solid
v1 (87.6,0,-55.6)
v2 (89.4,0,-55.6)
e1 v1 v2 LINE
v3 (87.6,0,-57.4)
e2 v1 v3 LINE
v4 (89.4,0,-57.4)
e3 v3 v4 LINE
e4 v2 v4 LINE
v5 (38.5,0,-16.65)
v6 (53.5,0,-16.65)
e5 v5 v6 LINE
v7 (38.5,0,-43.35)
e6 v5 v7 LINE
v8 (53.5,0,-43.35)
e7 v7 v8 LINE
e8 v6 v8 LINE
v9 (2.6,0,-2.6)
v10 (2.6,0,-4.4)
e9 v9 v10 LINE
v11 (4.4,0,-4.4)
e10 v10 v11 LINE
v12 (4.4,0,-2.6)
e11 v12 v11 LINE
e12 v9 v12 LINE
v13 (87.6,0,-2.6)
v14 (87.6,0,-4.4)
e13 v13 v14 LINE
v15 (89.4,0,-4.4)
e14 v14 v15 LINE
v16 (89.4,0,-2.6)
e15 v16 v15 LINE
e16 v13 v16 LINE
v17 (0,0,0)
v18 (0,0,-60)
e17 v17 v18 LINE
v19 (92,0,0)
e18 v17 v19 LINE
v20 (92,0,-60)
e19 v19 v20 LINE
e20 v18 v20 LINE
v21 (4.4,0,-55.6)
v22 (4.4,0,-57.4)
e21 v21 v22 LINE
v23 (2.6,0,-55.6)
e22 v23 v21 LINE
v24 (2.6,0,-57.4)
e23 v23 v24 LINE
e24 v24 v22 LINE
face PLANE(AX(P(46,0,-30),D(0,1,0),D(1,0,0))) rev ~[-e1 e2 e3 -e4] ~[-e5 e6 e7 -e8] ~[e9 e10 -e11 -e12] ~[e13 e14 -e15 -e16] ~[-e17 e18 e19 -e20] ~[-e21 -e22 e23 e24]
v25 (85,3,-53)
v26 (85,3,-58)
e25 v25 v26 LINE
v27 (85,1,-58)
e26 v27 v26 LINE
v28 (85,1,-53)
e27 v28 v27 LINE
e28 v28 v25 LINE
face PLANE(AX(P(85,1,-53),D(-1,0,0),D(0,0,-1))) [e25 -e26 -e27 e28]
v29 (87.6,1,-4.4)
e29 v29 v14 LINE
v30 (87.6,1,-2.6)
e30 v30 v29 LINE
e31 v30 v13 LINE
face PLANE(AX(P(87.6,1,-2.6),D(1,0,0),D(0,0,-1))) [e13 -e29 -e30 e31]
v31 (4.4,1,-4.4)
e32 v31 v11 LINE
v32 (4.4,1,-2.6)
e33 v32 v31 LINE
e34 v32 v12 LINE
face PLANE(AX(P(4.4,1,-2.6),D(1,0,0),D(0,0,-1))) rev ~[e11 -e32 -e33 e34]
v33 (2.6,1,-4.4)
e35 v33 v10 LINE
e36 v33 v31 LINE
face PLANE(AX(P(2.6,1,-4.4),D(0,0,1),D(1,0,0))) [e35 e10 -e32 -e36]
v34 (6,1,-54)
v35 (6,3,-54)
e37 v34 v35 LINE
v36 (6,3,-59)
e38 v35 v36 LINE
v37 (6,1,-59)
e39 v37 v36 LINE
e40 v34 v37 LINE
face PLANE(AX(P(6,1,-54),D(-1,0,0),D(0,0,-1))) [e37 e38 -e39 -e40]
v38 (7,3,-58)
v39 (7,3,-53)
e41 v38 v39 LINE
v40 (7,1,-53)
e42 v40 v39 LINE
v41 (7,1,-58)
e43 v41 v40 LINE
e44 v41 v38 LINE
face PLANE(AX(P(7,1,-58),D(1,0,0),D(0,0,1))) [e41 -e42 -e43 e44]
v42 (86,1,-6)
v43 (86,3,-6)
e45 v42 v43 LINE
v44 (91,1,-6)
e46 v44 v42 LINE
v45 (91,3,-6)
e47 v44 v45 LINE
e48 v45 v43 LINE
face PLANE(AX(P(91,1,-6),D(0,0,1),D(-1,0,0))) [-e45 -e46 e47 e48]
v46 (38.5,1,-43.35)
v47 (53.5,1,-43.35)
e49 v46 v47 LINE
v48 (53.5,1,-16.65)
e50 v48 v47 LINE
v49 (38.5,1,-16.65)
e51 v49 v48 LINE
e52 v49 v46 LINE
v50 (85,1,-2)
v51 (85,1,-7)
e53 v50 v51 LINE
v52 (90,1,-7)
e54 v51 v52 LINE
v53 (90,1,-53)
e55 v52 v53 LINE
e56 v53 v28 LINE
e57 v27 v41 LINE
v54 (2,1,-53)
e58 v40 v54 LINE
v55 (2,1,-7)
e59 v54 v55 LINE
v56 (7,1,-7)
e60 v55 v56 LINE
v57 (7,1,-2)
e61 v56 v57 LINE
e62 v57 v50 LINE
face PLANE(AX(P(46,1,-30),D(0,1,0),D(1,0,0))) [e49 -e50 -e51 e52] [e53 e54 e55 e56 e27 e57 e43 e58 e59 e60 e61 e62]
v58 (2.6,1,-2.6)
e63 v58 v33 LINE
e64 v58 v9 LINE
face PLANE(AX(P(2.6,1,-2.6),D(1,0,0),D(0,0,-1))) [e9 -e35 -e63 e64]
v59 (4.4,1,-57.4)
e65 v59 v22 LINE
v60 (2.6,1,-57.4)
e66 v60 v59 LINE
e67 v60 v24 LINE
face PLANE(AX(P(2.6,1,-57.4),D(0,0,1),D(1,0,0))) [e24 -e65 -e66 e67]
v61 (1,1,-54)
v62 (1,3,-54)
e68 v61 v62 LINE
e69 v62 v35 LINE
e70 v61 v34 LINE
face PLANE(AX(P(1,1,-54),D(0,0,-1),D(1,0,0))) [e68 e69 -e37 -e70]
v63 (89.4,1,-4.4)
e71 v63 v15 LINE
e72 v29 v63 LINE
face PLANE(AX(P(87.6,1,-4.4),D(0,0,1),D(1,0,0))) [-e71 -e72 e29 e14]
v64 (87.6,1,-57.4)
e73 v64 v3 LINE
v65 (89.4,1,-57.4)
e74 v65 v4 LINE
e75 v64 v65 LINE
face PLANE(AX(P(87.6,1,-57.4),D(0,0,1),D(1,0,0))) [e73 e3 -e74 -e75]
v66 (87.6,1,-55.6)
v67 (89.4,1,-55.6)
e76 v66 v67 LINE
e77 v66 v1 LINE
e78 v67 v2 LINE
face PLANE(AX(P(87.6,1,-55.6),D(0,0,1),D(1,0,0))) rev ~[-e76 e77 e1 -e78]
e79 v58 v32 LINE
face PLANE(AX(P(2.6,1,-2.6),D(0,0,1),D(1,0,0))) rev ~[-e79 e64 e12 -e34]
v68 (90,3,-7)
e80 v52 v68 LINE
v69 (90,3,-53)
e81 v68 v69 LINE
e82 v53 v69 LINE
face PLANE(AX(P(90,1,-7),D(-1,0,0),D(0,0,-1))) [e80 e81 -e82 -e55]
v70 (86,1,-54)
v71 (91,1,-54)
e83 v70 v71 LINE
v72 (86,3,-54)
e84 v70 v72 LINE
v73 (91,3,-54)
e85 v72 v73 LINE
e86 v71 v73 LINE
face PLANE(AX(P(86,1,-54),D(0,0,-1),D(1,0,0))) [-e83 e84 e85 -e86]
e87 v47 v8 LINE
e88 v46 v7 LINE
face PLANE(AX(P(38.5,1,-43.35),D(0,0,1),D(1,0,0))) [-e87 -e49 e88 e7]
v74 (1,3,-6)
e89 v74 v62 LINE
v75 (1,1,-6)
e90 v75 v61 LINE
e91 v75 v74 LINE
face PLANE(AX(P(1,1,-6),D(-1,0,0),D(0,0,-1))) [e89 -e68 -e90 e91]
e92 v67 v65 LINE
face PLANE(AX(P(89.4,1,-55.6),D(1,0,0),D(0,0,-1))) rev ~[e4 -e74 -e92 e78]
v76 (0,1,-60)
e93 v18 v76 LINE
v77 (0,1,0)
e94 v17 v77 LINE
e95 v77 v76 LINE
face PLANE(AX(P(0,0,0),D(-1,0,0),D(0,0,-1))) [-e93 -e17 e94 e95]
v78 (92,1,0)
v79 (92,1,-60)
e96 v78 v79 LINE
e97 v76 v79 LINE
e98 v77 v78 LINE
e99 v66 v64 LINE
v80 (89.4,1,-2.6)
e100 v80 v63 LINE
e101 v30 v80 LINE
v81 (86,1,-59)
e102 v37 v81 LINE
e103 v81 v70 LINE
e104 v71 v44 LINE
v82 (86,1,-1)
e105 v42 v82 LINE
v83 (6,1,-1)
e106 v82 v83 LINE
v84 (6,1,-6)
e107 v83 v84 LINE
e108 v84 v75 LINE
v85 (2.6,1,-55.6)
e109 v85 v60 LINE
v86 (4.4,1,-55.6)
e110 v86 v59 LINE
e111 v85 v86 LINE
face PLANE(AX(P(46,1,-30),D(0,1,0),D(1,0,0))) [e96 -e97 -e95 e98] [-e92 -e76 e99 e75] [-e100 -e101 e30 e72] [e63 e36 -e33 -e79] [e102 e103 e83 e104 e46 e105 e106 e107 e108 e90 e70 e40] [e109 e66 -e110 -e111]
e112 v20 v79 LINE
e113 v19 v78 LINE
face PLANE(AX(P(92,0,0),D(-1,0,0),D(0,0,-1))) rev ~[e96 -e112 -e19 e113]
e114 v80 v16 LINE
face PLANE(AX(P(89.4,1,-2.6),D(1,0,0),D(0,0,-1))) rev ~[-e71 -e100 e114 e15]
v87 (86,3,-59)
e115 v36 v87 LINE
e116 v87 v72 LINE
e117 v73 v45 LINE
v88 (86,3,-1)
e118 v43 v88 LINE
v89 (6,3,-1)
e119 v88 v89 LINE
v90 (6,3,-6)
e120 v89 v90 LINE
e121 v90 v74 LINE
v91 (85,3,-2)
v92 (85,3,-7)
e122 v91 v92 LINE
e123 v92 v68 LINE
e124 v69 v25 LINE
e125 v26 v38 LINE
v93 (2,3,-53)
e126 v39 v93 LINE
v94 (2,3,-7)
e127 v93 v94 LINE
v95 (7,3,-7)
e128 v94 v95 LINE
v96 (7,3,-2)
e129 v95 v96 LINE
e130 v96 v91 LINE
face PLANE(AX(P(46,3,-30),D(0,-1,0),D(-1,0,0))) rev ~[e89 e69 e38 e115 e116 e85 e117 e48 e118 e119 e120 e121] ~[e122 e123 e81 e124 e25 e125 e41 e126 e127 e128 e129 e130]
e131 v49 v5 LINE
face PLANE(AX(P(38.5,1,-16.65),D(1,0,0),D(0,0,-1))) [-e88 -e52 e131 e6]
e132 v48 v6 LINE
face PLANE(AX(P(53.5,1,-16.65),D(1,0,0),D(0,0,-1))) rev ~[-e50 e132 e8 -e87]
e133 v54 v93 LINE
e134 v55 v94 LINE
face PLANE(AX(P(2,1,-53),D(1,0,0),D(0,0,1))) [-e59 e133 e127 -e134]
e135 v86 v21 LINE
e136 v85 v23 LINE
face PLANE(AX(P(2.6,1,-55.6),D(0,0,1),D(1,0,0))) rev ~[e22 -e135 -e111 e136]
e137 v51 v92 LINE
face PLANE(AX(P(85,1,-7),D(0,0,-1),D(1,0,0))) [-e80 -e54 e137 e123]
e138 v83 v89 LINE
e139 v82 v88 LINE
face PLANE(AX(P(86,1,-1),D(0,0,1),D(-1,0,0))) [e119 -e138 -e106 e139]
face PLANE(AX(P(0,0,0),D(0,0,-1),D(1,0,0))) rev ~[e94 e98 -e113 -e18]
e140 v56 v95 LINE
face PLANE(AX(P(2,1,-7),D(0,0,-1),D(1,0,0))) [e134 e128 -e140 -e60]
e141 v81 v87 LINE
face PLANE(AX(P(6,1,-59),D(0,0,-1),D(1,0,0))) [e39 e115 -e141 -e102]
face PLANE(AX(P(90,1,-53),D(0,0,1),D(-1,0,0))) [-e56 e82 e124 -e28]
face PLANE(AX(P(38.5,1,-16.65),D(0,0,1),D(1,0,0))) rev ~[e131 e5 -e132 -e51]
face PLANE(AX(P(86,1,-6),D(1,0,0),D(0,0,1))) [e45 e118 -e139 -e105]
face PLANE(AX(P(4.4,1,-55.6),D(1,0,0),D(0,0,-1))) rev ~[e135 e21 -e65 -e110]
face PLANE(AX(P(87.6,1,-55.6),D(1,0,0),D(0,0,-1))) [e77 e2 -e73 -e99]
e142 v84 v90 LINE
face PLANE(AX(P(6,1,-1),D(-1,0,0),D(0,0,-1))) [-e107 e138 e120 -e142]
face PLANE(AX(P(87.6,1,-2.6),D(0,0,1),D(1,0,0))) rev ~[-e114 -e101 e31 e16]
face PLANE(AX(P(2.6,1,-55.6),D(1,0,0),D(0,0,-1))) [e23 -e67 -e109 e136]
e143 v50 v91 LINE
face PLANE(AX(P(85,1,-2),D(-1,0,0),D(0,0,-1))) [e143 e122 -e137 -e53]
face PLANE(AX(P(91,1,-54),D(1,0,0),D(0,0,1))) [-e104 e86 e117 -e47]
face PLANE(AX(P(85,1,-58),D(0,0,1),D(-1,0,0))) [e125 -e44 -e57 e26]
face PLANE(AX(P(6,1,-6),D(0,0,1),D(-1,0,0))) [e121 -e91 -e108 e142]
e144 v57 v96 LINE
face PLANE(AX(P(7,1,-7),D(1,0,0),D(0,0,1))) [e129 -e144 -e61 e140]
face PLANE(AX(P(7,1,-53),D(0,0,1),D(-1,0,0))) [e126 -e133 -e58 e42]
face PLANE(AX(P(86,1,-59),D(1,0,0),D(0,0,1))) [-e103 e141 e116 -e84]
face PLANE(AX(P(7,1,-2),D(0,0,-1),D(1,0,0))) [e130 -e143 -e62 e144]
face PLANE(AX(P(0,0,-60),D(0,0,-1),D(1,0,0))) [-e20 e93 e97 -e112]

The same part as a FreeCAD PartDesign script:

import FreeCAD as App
import Part
import Sketcher

V = App.Vector
Q = App.Units.Quantity

doc = App.newDocument("Part")
params = doc.addObject("Spreadsheet::Sheet", "Params")
for row, (alias, value) in enumerate([
    ("sketch1_width", "92 mm"),
    ("sketch1_height", "60 mm"),
    ("pad1_length", "1 mm"),
    ("sketch2_width", "5 mm"),
    ("sketch2_width2", "80 mm"),
    ("sketch2_width3", "78 mm"),
    ("sketch2_height", "48 mm"),
    ("sketch2_height2", "46 mm"),
    ("pad2_length", "2 mm"),
    ("sketch3_width", "1.8 mm"),
    ("pocket1_length", "1 mm"),
    ("sketch4_width", "1.8 mm"),
    ("pocket2_length", "1 mm"),
    ("sketch5_width", "1.8 mm"),
    ("pocket3_length", "1 mm"),
    ("sketch6_width", "1.8 mm"),
    ("pocket4_length", "1 mm"),
    ("sketch7_width", "15 mm"),
    ("sketch7_height", "26.7 mm"),
    ("pocket5_length", "1 mm"),
], start=1):
    params.set(f"A{row}", alias)
    params.set(f"B{row}", "=" + value)
    params.setAlias(f"B{row}", alias)

body = doc.addObject("PartDesign::Body", "Body")

# Sketch on XZ plane
sketch1 = body.newObject("Sketcher::SketchObject", "Sketch")
sketch1.AttachmentSupport = (doc.getObject("XZ_Plane"), [""])
sketch1.MapMode = "FlatFace"
sketch1.addGeometry([
    Part.LineSegment(V(0, -60, 0), V(0, 0, 0)),
    Part.LineSegment(V(0, 0, 0), V(92, 0, 0)),
    Part.LineSegment(V(92, 0, 0), V(92, -60, 0)),
    Part.LineSegment(V(92, -60, 0), V(0, -60, 0)),
], False)
sketch1.addConstraint([
    Sketcher.Constraint("Coincident", 0, 2, 1, 1),
    Sketcher.Constraint("Coincident", 1, 2, 2, 1),
    Sketcher.Constraint("Coincident", 2, 2, 3, 1),
    Sketcher.Constraint("Coincident", 3, 2, 0, 1),
    Sketcher.Constraint("Vertical", 0),
    Sketcher.Constraint("Horizontal", 1),
    Sketcher.Constraint("Vertical", 2),
    Sketcher.Constraint("Horizontal", 3),
    Sketcher.Constraint("Coincident", 0, 2, -1, 1),
    Sketcher.Constraint("DistanceX", 1, 1, 1, 2, Q("92 mm")),
    Sketcher.Constraint("DistanceY", 0, 1, 0, 2, Q("60 mm")),
])
sketch1.setExpression("Constraints[9]", "Params.sketch1_width")
sketch1.setExpression("Constraints[10]", "Params.sketch1_height")
pad1 = body.newObject("PartDesign::Pad", "Pad")
pad1.Profile = sketch1
pad1.setExpression("Length", "Params.pad1_length")
pad1.Reversed = True

# Sketch on XZ plane
sketch2 = body.newObject("Sketcher::SketchObject", "Sketch001")
sketch2.AttachmentSupport = (doc.getObject("XZ_Plane"), [""])
sketch2.MapMode = "FlatFace"
sketch2.AttachmentOffset = App.Placement(V(0, 0, -1), App.Rotation())
sketch2.addGeometry([
    Part.LineSegment(V(91, -54, 0), V(86, -54, 0)),  # 0
    Part.LineSegment(V(86, -54, 0), V(86, -59, 0)),  # 1
    Part.LineSegment(V(86, -59, 0), V(6, -59, 0)),  # 2
    Part.LineSegment(V(6, -59, 0), V(6, -54, 0)),  # 3
    Part.LineSegment(V(6, -54, 0), V(1, -54, 0)),  # 4
    Part.LineSegment(V(1, -54, 0), V(1, -6, 0)),  # 5
    Part.LineSegment(V(1, -6, 0), V(6, -6, 0)),  # 6
    Part.LineSegment(V(6, -6, 0), V(6, -1, 0)),  # 7
    Part.LineSegment(V(6, -1, 0), V(86, -1, 0)),  # 8
    Part.LineSegment(V(86, -1, 0), V(86, -6, 0)),  # 9
    Part.LineSegment(V(86, -6, 0), V(91, -6, 0)),  # 10
    Part.LineSegment(V(91, -6, 0), V(91, -54, 0)),  # 11
    Part.LineSegment(V(7, -58, 0), V(85, -58, 0)),  # 12
    Part.LineSegment(V(85, -58, 0), V(85, -53, 0)),  # 13
    Part.LineSegment(V(85, -53, 0), V(90, -53, 0)),  # 14
    Part.LineSegment(V(90, -53, 0), V(90, -7, 0)),  # 15
    Part.LineSegment(V(90, -7, 0), V(85, -7, 0)),  # 16
    Part.LineSegment(V(85, -7, 0), V(85, -2, 0)),  # 17
    Part.LineSegment(V(85, -2, 0), V(7, -2, 0)),  # 18
    Part.LineSegment(V(7, -2, 0), V(7, -7, 0)),  # 19
    Part.LineSegment(V(7, -7, 0), V(2, -7, 0)),  # 20
    Part.LineSegment(V(2, -7, 0), V(2, -53, 0)),  # 21
    Part.LineSegment(V(2, -53, 0), V(7, -53, 0)),  # 22
    Part.LineSegment(V(7, -53, 0), V(7, -58, 0)),  # 23
], False)
sketch2.addConstraint([
    Sketcher.Constraint("Coincident", 0, 2, 1, 1),
    Sketcher.Constraint("Coincident", 1, 2, 2, 1),
    Sketcher.Constraint("Coincident", 2, 2, 3, 1),
    Sketcher.Constraint("Coincident", 3, 2, 4, 1),
    Sketcher.Constraint("Coincident", 4, 2, 5, 1),
    Sketcher.Constraint("Coincident", 5, 2, 6, 1),
    Sketcher.Constraint("Coincident", 6, 2, 7, 1),
    Sketcher.Constraint("Coincident", 7, 2, 8, 1),
    Sketcher.Constraint("Coincident", 8, 2, 9, 1),
    Sketcher.Constraint("Coincident", 9, 2, 10, 1),
    Sketcher.Constraint("Coincident", 10, 2, 11, 1),
    Sketcher.Constraint("Coincident", 11, 2, 0, 1),
    Sketcher.Constraint("Coincident", 12, 2, 13, 1),
    Sketcher.Constraint("Coincident", 13, 2, 14, 1),
    Sketcher.Constraint("Coincident", 14, 2, 15, 1),
    Sketcher.Constraint("Coincident", 15, 2, 16, 1),
    Sketcher.Constraint("Coincident", 16, 2, 17, 1),
    Sketcher.Constraint("Coincident", 17, 2, 18, 1),
    Sketcher.Constraint("Coincident", 18, 2, 19, 1),
    Sketcher.Constraint("Coincident", 19, 2, 20, 1),
    Sketcher.Constraint("Coincident", 20, 2, 21, 1),
    Sketcher.Constraint("Coincident", 21, 2, 22, 1),
    Sketcher.Constraint("Coincident", 22, 2, 23, 1),
    Sketcher.Constraint("Coincident", 23, 2, 12, 1),
    Sketcher.Constraint("Horizontal", 0),
    Sketcher.Constraint("Vertical", 1),
    Sketcher.Constraint("Horizontal", 2),
    Sketcher.Constraint("Vertical", 3),
    Sketcher.Constraint("Horizontal", 4),
    Sketcher.Constraint("Vertical", 5),
    Sketcher.Constraint("Horizontal", 6),
    Sketcher.Constraint("Vertical", 7),
    Sketcher.Constraint("Horizontal", 8),
    Sketcher.Constraint("Vertical", 9),
    Sketcher.Constraint("Horizontal", 10),
    Sketcher.Constraint("Vertical", 11),
    Sketcher.Constraint("Horizontal", 12),
    Sketcher.Constraint("Vertical", 13),
    Sketcher.Constraint("Horizontal", 14),
    Sketcher.Constraint("Vertical", 15),
    Sketcher.Constraint("Horizontal", 16),
    Sketcher.Constraint("Vertical", 17),
    Sketcher.Constraint("Horizontal", 18),
    Sketcher.Constraint("Vertical", 19),
    Sketcher.Constraint("Horizontal", 20),
    Sketcher.Constraint("Vertical", 21),
    Sketcher.Constraint("Horizontal", 22),
    Sketcher.Constraint("Vertical", 23),
    Sketcher.Constraint("Horizontal", 0, 2, 3, 2),
    Sketcher.Constraint("Horizontal", 6, 2, 9, 2),
    Sketcher.Constraint("Horizontal", 16, 2, 19, 2),
    Sketcher.Constraint("Horizontal", 14, 2, 21, 2),
    Sketcher.Constraint("Vertical", 3, 2, 6, 2),
    Sketcher.Constraint("Vertical", 1, 2, 8, 2),
    Sketcher.Constraint("Vertical", 13, 2, 16, 2),
    Sketcher.Constraint("Vertical", 19, 2, 22, 2),
    Sketcher.Constraint("Equal", 0, 4),
    Sketcher.Constraint("Equal", 10, 14),
    Sketcher.Constraint("Equal", 16, 20),
    Sketcher.Constraint("Equal", 22, 1),
    Sketcher.Constraint("Equal", 3, 7),
    Sketcher.Constraint("Equal", 9, 13),
    Sketcher.Constraint("Equal", 13, 17),
    Sketcher.Constraint("DistanceX", 0, 2, 0, 1, Q("5 mm")),
    Sketcher.Constraint("DistanceX", 2, 2, 2, 1, Q("80 mm")),
    Sketcher.Constraint("DistanceX", 12, 1, 12, 2, Q("78 mm")),
    Sketcher.Constraint("DistanceY", 5, 1, 5, 2, Q("48 mm")),
    Sketcher.Constraint("DistanceY", 15, 1, 15, 2, Q("46 mm")),
    Sketcher.Constraint("DistanceX", -1, 1, 0, 2, Q("86 mm")),
    Sketcher.Constraint("DistanceY", 0, 2, -1, 1, Q("54 mm")),
    Sketcher.Constraint("DistanceX", -1, 1, 12, 2, Q("85 mm")),
    Sketcher.Constraint("DistanceY", 12, 2, -1, 1, Q("58 mm")),
])
sketch2.setExpression("Constraints[63]", "Params.sketch2_width")
sketch2.setExpression("Constraints[64]", "Params.sketch2_width2")
sketch2.setExpression("Constraints[65]", "Params.sketch2_width3")
sketch2.setExpression("Constraints[66]", "Params.sketch2_height")
sketch2.setExpression("Constraints[67]", "Params.sketch2_height2")
pad2 = body.newObject("PartDesign::Pad", "Pad001")
pad2.Profile = sketch2
pad2.setExpression("Length", "Params.pad2_length")
pad2.Reversed = True

# Sketch on XZ plane
sketch3 = body.newObject("Sketcher::SketchObject", "Sketch002")
sketch3.AttachmentSupport = (doc.getObject("XZ_Plane"), [""])
sketch3.MapMode = "FlatFace"
sketch3.AttachmentOffset = App.Placement(V(0, 0, -1), App.Rotation())
sketch3.addGeometry([
    Part.LineSegment(V(2.6, -57.4, 0), V(2.6, -55.6, 0)),
    Part.LineSegment(V(2.6, -55.6, 0), V(4.4, -55.6, 0)),
    Part.LineSegment(V(4.4, -55.6, 0), V(4.4, -57.4, 0)),
    Part.LineSegment(V(4.4, -57.4, 0), V(2.6, -57.4, 0)),
], False)
sketch3.addConstraint([
    Sketcher.Constraint("Coincident", 0, 2, 1, 1),
    Sketcher.Constraint("Coincident", 1, 2, 2, 1),
    Sketcher.Constraint("Coincident", 2, 2, 3, 1),
    Sketcher.Constraint("Coincident", 3, 2, 0, 1),
    Sketcher.Constraint("Vertical", 0),
    Sketcher.Constraint("Horizontal", 1),
    Sketcher.Constraint("Vertical", 2),
    Sketcher.Constraint("Horizontal", 3),
    Sketcher.Constraint("Equal", 3, 0),
    Sketcher.Constraint("DistanceX", 1, 1, 1, 2, Q("1.8 mm")),
    Sketcher.Constraint("DistanceX", -1, 1, 0, 2, Q("2.6 mm")),
    Sketcher.Constraint("DistanceY", 0, 2, -1, 1, Q("55.6 mm")),
])
sketch3.setExpression("Constraints[9]", "Params.sketch3_width")
pocket1 = body.newObject("PartDesign::Pocket", "Pocket")
pocket1.Profile = sketch3
pocket1.setExpression("Length", "Params.pocket1_length")
pocket1.Reversed = True

# Sketch on XZ plane
sketch4 = body.newObject("Sketcher::SketchObject", "Sketch003")
sketch4.AttachmentSupport = (doc.getObject("XZ_Plane"), [""])
sketch4.MapMode = "FlatFace"
sketch4.AttachmentOffset = App.Placement(V(0, 0, -1), App.Rotation())
sketch4.addGeometry([
    Part.LineSegment(V(87.6, -57.4, 0), V(87.6, -55.6, 0)),
    Part.LineSegment(V(87.6, -55.6, 0), V(89.4, -55.6, 0)),
    Part.LineSegment(V(89.4, -55.6, 0), V(89.4, -57.4, 0)),
    Part.LineSegment(V(89.4, -57.4, 0), V(87.6, -57.4, 0)),
], False)
sketch4.addConstraint([
    Sketcher.Constraint("Coincident", 0, 2, 1, 1),
    Sketcher.Constraint("Coincident", 1, 2, 2, 1),
    Sketcher.Constraint("Coincident", 2, 2, 3, 1),
    Sketcher.Constraint("Coincident", 3, 2, 0, 1),
    Sketcher.Constraint("Vertical", 0),
    Sketcher.Constraint("Horizontal", 1),
    Sketcher.Constraint("Vertical", 2),
    Sketcher.Constraint("Horizontal", 3),
    Sketcher.Constraint("Equal", 3, 0),
    Sketcher.Constraint("DistanceX", 1, 1, 1, 2, Q("1.8 mm")),
    Sketcher.Constraint("DistanceX", -1, 1, 0, 2, Q("87.6 mm")),
    Sketcher.Constraint("DistanceY", 0, 2, -1, 1, Q("55.6 mm")),
])
sketch4.setExpression("Constraints[9]", "Params.sketch4_width")
pocket2 = body.newObject("PartDesign::Pocket", "Pocket001")
pocket2.Profile = sketch4
pocket2.setExpression("Length", "Params.pocket2_length")
pocket2.Reversed = True

# Sketch on XZ plane
sketch5 = body.newObject("Sketcher::SketchObject", "Sketch004")
sketch5.AttachmentSupport = (doc.getObject("XZ_Plane"), [""])
sketch5.MapMode = "FlatFace"
sketch5.AttachmentOffset = App.Placement(V(0, 0, -1), App.Rotation())
sketch5.addGeometry([
    Part.LineSegment(V(87.6, -4.4, 0), V(87.6, -2.6, 0)),
    Part.LineSegment(V(87.6, -2.6, 0), V(89.4, -2.6, 0)),
    Part.LineSegment(V(89.4, -2.6, 0), V(89.4, -4.4, 0)),
    Part.LineSegment(V(89.4, -4.4, 0), V(87.6, -4.4, 0)),
], False)
sketch5.addConstraint([
    Sketcher.Constraint("Coincident", 0, 2, 1, 1),
    Sketcher.Constraint("Coincident", 1, 2, 2, 1),
    Sketcher.Constraint("Coincident", 2, 2, 3, 1),
    Sketcher.Constraint("Coincident", 3, 2, 0, 1),
    Sketcher.Constraint("Vertical", 0),
    Sketcher.Constraint("Horizontal", 1),
    Sketcher.Constraint("Vertical", 2),
    Sketcher.Constraint("Horizontal", 3),
    Sketcher.Constraint("Equal", 3, 0),
    Sketcher.Constraint("DistanceX", 1, 1, 1, 2, Q("1.8 mm")),
    Sketcher.Constraint("DistanceX", -1, 1, 0, 2, Q("87.6 mm")),
    Sketcher.Constraint("DistanceY", 0, 2, -1, 1, Q("2.6 mm")),
])
sketch5.setExpression("Constraints[9]", "Params.sketch5_width")
pocket3 = body.newObject("PartDesign::Pocket", "Pocket002")
pocket3.Profile = sketch5
pocket3.setExpression("Length", "Params.pocket3_length")
pocket3.Reversed = True

# Sketch on XZ plane
sketch6 = body.newObject("Sketcher::SketchObject", "Sketch005")
sketch6.AttachmentSupport = (doc.getObject("XZ_Plane"), [""])
sketch6.MapMode = "FlatFace"
sketch6.AttachmentOffset = App.Placement(V(0, 0, -1), App.Rotation())
sketch6.addGeometry([
    Part.LineSegment(V(2.6, -4.4, 0), V(2.6, -2.6, 0)),
    Part.LineSegment(V(2.6, -2.6, 0), V(4.4, -2.6, 0)),
    Part.LineSegment(V(4.4, -2.6, 0), V(4.4, -4.4, 0)),
    Part.LineSegment(V(4.4, -4.4, 0), V(2.6, -4.4, 0)),
], False)
sketch6.addConstraint([
    Sketcher.Constraint("Coincident", 0, 2, 1, 1),
    Sketcher.Constraint("Coincident", 1, 2, 2, 1),
    Sketcher.Constraint("Coincident", 2, 2, 3, 1),
    Sketcher.Constraint("Coincident", 3, 2, 0, 1),
    Sketcher.Constraint("Vertical", 0),
    Sketcher.Constraint("Horizontal", 1),
    Sketcher.Constraint("Vertical", 2),
    Sketcher.Constraint("Horizontal", 3),
    Sketcher.Constraint("Equal", 3, 0),
    Sketcher.Constraint("DistanceX", 1, 1, 1, 2, Q("1.8 mm")),
    Sketcher.Constraint("DistanceX", -1, 1, 0, 2, Q("2.6 mm")),
    Sketcher.Constraint("DistanceY", 0, 2, -1, 1, Q("2.6 mm")),
])
sketch6.setExpression("Constraints[9]", "Params.sketch6_width")
pocket4 = body.newObject("PartDesign::Pocket", "Pocket003")
pocket4.Profile = sketch6
pocket4.setExpression("Length", "Params.pocket4_length")
pocket4.Reversed = True

# Sketch on XZ plane
sketch7 = body.newObject("Sketcher::SketchObject", "Sketch006")
sketch7.AttachmentSupport = (doc.getObject("XZ_Plane"), [""])
sketch7.MapMode = "FlatFace"
sketch7.AttachmentOffset = App.Placement(V(0, 0, -1), App.Rotation())
sketch7.addGeometry([
    Part.LineSegment(V(38, -43, 0), V(38, -17, 0)),
    Part.LineSegment(V(38, -17, 0), V(54, -17, 0)),
    Part.LineSegment(V(54, -17, 0), V(54, -43, 0)),
    Part.LineSegment(V(54, -43, 0), V(38, -43, 0)),
], False)
sketch7.addConstraint([
    Sketcher.Constraint("Coincident", 0, 2, 1, 1),
    Sketcher.Constraint("Coincident", 1, 2, 2, 1),
    Sketcher.Constraint("Coincident", 2, 2, 3, 1),
    Sketcher.Constraint("Coincident", 3, 2, 0, 1),
    Sketcher.Constraint("Vertical", 0),
    Sketcher.Constraint("Horizontal", 1),
    Sketcher.Constraint("Vertical", 2),
    Sketcher.Constraint("Horizontal", 3),
    Sketcher.Constraint("DistanceX", 1, 1, 1, 2, Q("15 mm")),
    Sketcher.Constraint("DistanceY", 0, 1, 0, 2, Q("26.7 mm")),
    Sketcher.Constraint("DistanceX", -1, 1, 0, 2, Q("38.5 mm")),
    Sketcher.Constraint("DistanceY", 0, 2, -1, 1, Q("16.65 mm")),
])
sketch7.setExpression("Constraints[8]", "Params.sketch7_width")
sketch7.setExpression("Constraints[9]", "Params.sketch7_height")
pocket5 = body.newObject("PartDesign::Pocket", "Pocket004")
pocket5.Profile = sketch7
pocket5.setExpression("Length", "Params.pocket5_length")
pocket5.Reversed = True

doc.recompute()
